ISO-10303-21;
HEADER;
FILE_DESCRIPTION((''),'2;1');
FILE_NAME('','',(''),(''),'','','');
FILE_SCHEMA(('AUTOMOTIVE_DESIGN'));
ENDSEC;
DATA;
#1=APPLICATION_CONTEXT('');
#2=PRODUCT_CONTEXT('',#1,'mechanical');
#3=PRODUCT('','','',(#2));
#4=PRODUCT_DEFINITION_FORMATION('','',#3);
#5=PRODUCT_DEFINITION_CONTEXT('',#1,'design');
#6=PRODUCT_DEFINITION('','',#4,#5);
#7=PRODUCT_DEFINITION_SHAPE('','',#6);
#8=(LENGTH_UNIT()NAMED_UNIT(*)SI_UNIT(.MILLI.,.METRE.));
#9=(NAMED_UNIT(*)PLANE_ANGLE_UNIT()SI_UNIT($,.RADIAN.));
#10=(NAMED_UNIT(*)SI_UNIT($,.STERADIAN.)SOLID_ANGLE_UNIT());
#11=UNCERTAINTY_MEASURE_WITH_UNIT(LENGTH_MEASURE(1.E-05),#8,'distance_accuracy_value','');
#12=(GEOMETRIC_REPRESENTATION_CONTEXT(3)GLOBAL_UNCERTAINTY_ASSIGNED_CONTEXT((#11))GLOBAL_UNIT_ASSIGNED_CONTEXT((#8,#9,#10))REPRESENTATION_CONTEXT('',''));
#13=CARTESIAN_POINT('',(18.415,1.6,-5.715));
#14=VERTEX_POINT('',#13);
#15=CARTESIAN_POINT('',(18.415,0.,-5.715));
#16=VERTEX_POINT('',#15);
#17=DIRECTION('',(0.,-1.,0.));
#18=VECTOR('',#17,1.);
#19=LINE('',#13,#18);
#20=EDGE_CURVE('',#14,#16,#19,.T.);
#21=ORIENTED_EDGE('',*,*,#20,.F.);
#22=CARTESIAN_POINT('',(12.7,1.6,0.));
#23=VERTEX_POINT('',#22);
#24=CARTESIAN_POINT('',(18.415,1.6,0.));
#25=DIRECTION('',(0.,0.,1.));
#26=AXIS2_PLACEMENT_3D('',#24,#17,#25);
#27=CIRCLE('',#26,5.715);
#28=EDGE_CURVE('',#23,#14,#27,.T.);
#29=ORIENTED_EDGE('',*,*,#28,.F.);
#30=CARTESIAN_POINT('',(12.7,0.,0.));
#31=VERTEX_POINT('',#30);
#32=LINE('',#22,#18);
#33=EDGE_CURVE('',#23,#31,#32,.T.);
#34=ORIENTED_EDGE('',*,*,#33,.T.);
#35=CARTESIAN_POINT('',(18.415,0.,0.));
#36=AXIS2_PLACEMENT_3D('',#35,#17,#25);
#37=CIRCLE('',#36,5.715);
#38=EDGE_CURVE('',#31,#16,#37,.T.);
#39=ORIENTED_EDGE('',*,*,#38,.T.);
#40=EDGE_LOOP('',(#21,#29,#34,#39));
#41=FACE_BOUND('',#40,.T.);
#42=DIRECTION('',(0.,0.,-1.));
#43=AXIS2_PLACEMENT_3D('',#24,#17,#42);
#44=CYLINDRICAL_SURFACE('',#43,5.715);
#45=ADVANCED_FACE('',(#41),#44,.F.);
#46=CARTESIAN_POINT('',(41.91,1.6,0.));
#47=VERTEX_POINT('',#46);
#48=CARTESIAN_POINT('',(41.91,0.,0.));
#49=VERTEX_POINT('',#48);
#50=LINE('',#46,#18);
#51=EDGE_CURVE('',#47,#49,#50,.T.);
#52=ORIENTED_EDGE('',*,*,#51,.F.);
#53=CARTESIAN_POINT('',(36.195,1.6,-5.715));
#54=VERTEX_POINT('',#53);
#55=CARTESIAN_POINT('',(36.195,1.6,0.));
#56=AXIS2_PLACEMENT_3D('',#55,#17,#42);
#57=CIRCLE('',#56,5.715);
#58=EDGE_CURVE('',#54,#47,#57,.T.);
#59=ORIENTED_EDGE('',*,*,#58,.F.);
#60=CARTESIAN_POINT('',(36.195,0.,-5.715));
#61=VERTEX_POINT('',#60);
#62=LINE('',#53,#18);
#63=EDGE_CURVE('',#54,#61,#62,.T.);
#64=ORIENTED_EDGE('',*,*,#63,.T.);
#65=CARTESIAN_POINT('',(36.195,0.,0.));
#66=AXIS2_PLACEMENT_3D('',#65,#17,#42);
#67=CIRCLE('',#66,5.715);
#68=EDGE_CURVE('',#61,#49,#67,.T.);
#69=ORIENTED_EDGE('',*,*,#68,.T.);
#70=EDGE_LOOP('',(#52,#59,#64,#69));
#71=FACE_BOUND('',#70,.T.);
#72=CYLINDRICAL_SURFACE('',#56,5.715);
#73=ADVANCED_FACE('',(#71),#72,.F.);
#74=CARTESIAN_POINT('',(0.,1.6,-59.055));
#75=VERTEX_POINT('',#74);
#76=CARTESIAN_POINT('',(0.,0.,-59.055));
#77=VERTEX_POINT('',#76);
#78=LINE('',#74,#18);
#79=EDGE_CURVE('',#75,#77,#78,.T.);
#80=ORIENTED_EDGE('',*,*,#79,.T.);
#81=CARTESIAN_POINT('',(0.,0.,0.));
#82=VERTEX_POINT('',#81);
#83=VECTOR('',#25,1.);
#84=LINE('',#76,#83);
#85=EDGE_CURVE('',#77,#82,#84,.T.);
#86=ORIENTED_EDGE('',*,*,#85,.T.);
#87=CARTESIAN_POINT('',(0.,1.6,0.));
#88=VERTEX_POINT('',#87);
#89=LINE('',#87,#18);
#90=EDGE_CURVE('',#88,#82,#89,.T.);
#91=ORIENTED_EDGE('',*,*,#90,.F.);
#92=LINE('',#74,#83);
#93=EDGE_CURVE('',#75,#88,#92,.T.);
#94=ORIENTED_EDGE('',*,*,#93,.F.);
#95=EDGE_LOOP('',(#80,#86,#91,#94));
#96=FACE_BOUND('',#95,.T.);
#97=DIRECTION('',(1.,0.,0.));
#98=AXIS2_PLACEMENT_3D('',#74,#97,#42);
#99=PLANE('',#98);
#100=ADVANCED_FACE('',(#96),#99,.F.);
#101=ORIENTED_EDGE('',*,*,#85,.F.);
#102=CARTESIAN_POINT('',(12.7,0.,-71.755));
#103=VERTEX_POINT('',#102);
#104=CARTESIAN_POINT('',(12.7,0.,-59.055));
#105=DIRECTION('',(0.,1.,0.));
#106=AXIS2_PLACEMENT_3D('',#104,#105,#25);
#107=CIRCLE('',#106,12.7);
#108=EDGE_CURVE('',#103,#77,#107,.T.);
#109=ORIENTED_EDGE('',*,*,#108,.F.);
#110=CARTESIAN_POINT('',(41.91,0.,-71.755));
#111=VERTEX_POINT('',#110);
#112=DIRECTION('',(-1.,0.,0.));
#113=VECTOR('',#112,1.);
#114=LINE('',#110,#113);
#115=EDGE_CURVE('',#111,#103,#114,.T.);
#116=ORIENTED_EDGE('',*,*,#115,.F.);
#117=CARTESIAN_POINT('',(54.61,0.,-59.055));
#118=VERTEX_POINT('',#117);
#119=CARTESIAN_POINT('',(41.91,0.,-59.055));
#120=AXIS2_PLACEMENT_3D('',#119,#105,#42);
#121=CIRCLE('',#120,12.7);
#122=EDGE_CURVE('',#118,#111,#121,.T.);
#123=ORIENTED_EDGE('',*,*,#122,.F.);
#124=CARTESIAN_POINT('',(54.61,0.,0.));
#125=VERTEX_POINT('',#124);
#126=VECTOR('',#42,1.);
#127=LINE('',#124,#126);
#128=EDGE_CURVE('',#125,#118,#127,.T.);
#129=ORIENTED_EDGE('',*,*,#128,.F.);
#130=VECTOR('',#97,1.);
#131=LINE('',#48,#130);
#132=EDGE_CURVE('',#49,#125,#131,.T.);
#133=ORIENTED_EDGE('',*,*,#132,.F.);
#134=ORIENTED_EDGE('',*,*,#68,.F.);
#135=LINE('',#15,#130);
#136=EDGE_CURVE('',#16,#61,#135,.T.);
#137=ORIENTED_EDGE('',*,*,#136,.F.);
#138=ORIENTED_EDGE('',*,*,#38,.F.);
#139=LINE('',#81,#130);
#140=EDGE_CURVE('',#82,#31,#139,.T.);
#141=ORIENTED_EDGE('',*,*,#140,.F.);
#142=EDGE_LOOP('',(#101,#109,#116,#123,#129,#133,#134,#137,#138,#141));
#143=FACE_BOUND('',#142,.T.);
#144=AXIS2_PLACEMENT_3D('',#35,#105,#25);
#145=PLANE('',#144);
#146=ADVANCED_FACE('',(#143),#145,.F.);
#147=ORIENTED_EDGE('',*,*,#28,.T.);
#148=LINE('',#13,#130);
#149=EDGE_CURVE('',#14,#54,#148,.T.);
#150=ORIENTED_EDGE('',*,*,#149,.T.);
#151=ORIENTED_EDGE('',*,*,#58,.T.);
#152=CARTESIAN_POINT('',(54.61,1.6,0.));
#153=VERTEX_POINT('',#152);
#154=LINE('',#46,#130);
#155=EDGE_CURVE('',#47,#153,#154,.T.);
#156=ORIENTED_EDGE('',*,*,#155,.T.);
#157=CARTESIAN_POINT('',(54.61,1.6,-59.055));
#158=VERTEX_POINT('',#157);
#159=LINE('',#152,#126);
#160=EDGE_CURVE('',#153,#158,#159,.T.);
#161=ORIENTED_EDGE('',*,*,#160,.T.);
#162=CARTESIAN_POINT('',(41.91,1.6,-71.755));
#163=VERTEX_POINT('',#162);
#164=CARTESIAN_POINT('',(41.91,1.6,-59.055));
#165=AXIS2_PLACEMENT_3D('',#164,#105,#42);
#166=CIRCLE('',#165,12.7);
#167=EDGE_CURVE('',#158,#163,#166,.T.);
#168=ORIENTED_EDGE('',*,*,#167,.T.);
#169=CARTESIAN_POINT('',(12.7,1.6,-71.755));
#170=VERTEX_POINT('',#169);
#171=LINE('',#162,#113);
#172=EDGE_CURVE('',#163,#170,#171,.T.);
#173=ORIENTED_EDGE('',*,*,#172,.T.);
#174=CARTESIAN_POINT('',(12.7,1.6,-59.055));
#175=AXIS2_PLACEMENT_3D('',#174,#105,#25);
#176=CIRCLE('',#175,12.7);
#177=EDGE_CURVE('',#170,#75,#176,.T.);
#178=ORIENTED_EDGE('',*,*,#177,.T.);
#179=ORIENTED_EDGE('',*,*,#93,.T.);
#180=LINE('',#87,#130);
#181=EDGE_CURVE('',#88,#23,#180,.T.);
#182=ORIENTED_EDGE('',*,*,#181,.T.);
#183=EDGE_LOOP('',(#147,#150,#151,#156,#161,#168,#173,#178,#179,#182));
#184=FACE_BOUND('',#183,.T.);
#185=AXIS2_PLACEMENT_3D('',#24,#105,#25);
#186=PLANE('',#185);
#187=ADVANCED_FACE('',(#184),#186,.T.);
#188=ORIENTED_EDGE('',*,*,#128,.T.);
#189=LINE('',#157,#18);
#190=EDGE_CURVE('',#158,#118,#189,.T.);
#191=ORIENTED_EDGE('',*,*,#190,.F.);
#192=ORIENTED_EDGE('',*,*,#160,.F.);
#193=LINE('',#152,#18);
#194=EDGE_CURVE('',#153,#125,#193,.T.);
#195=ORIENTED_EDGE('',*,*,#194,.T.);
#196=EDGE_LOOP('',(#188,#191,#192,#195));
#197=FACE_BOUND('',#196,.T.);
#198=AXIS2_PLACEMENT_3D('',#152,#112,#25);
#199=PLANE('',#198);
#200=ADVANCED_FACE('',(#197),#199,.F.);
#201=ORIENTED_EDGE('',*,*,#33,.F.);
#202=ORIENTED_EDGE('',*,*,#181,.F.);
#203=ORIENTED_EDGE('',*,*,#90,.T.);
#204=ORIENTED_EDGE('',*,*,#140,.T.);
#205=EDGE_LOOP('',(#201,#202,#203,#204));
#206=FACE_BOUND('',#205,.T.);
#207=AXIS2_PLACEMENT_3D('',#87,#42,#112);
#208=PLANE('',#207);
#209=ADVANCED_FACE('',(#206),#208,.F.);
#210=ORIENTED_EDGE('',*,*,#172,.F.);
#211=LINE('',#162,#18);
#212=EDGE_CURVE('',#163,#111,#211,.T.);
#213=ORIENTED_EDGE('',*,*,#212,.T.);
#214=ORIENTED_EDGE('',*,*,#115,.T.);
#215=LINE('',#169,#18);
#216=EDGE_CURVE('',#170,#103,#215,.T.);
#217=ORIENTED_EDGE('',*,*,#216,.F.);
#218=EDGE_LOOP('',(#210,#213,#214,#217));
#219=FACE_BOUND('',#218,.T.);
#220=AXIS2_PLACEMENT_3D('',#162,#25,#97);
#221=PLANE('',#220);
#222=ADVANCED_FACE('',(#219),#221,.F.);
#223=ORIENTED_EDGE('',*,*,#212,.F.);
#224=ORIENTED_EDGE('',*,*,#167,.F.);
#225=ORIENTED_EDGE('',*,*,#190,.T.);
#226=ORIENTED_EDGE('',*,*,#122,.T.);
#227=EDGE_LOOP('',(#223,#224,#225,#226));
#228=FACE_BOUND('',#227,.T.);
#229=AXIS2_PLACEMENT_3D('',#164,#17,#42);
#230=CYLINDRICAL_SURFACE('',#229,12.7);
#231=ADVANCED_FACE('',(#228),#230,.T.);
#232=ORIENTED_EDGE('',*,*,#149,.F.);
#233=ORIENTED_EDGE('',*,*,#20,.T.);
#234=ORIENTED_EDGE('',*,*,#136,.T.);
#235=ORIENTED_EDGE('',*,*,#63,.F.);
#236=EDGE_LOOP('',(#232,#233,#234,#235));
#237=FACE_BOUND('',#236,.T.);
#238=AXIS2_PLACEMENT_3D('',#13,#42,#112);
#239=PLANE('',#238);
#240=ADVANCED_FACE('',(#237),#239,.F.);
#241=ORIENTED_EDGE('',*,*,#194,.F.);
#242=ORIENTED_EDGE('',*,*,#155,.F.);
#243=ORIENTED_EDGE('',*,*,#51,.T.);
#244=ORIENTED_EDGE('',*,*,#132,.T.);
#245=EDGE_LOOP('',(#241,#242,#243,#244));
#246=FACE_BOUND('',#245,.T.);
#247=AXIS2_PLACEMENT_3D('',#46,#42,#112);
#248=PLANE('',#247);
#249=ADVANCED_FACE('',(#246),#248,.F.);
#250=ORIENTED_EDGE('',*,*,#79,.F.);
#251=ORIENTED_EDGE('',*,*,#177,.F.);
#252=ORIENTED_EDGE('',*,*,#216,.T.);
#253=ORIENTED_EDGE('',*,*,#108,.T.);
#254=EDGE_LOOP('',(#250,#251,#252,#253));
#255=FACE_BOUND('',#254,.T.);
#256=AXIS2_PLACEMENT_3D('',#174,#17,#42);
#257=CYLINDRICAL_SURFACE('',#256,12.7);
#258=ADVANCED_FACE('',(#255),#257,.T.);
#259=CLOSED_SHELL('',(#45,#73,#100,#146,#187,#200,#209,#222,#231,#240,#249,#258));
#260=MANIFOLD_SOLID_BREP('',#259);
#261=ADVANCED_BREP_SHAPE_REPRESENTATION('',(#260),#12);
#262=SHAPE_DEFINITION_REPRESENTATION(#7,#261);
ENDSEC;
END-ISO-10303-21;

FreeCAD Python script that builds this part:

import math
import FreeCAD as App
import Part
import Sketcher
from FreeCAD import Vector
Q = App.Units.Quantity

doc = App.newDocument("Part")
params = doc.addObject("Spreadsheet::Sheet", "Params")
for row, (alias, value) in enumerate([
    ("sketch1_radius", "0.5 in"),
    ("sketch1_width", "0.7 in"),
    ("sketch1_radius2", "0.225 in"),
    ("pad1_length", "1.6 mm"),
], start=1):
    params.set(f"A{row}", alias)
    params.set(f"B{row}", "=" + value)
    params.setAlias(f"B{row}", alias)

body = doc.addObject("PartDesign::Body", "Body")

sketch1 = body.newObject("Sketcher::SketchObject", "Sketch")
sketch1.AttachmentSupport = (doc.getObject("XZ_Plane"), [""])
sketch1.MapMode = "FlatFace"
sketch1.addGeometry([
    Part.LineSegment(Vector(0, 0, 0), Vector(12.7, 0, 0)),
    Part.ArcOfCircle(Part.Circle(Vector(18.415, 0, 0), Vector(0, 0, 1), 5.715), math.radians(-180), math.radians(-90)),
    Part.LineSegment(Vector(18.415, -5.715, 0), Vector(36.195, -5.715, 0)),
    Part.ArcOfCircle(Part.Circle(Vector(36.195, 0, 0), Vector(0, 0, 1), 5.715), math.radians(-90), math.radians(0)),
    Part.LineSegment(Vector(41.91, 0, 0), Vector(54.61, 0, 0)),
    Part.LineSegment(Vector(54.61, 0, 0), Vector(54.61, -59.055, 0)),
    Part.ArcOfCircle(Part.Circle(Vector(41.91, -59.055, 0), Vector(0, 0, 1), 12.7), math.radians(-90), math.radians(0)),
    Part.LineSegment(Vector(41.91, -71.755, 0), Vector(12.7, -71.755, 0)),
    Part.ArcOfCircle(Part.Circle(Vector(12.7, -59.055, 0), Vector(0, 0, 1), 12.7), math.radians(180), math.radians(270)),
    Part.LineSegment(Vector(0, -59.055, 0), Vector(0, 0, 0)),
], False)
sketch1.addConstraint([
    Sketcher.Constraint("Coincident", 0, 2, 1, 1),
    Sketcher.Constraint("Tangent", 1, 2, 2, 1),
    Sketcher.Constraint("Tangent", 2, 2, 3, 1),
    Sketcher.Constraint("Coincident", 3, 2, 4, 1),
    Sketcher.Constraint("Coincident", 4, 2, 5, 1),
    Sketcher.Constraint("Tangent", 5, 2, 6, 2),
    Sketcher.Constraint("Tangent", 6, 1, 7, 1),
    Sketcher.Constraint("Tangent", 7, 2, 8, 2),
    Sketcher.Constraint("Tangent", 8, 1, 9, 1),
    Sketcher.Constraint("Coincident", 9, 2, 0, 1),
    Sketcher.Constraint("Horizontal", 0),
    Sketcher.Constraint("Horizontal", 2),
    Sketcher.Constraint("Horizontal", 4),
    Sketcher.Constraint("Vertical", 5),
    Sketcher.Constraint("Horizontal", 7),
    Sketcher.Constraint("Vertical", 9),
    Sketcher.Constraint("Coincident", 9, 2, -1, 1),
    Sketcher.Constraint("Equal", 1, 3),
    Sketcher.Constraint("Equal", 6, 8),
    Sketcher.Constraint("PointOnObject", 1, 3, -1),
    Sketcher.Constraint("PointOnObject", 3, 2, -1),
    Sketcher.Constraint("Vertical", 8, 3, 0, 2),
    Sketcher.Constraint("Vertical", 6, 3, 3, 2),
    Sketcher.Constraint("Radius", 6, Q("0.5 in")),
    Sketcher.Constraint("DistanceX", 2, 1, 2, 2, Q("0.7 in")),
    Sketcher.Constraint("Radius", 1, Q("0.225 in")),
    Sketcher.Constraint("DistanceY", 8, 3, 1, 2, Q("2.1 in")),
])
sketch1.setExpression("Constraints[23]", "Params.sketch1_radius")
sketch1.setExpression("Constraints[24]", "Params.sketch1_width")
sketch1.setExpression("Constraints[25]", "Params.sketch1_radius2")
pad1 = body.newObject("PartDesign::Pad", "Pad")
pad1.Profile = sketch1
pad1.setExpression("Length", "Params.pad1_length")
pad1.Reversed = True

doc.recompute()
